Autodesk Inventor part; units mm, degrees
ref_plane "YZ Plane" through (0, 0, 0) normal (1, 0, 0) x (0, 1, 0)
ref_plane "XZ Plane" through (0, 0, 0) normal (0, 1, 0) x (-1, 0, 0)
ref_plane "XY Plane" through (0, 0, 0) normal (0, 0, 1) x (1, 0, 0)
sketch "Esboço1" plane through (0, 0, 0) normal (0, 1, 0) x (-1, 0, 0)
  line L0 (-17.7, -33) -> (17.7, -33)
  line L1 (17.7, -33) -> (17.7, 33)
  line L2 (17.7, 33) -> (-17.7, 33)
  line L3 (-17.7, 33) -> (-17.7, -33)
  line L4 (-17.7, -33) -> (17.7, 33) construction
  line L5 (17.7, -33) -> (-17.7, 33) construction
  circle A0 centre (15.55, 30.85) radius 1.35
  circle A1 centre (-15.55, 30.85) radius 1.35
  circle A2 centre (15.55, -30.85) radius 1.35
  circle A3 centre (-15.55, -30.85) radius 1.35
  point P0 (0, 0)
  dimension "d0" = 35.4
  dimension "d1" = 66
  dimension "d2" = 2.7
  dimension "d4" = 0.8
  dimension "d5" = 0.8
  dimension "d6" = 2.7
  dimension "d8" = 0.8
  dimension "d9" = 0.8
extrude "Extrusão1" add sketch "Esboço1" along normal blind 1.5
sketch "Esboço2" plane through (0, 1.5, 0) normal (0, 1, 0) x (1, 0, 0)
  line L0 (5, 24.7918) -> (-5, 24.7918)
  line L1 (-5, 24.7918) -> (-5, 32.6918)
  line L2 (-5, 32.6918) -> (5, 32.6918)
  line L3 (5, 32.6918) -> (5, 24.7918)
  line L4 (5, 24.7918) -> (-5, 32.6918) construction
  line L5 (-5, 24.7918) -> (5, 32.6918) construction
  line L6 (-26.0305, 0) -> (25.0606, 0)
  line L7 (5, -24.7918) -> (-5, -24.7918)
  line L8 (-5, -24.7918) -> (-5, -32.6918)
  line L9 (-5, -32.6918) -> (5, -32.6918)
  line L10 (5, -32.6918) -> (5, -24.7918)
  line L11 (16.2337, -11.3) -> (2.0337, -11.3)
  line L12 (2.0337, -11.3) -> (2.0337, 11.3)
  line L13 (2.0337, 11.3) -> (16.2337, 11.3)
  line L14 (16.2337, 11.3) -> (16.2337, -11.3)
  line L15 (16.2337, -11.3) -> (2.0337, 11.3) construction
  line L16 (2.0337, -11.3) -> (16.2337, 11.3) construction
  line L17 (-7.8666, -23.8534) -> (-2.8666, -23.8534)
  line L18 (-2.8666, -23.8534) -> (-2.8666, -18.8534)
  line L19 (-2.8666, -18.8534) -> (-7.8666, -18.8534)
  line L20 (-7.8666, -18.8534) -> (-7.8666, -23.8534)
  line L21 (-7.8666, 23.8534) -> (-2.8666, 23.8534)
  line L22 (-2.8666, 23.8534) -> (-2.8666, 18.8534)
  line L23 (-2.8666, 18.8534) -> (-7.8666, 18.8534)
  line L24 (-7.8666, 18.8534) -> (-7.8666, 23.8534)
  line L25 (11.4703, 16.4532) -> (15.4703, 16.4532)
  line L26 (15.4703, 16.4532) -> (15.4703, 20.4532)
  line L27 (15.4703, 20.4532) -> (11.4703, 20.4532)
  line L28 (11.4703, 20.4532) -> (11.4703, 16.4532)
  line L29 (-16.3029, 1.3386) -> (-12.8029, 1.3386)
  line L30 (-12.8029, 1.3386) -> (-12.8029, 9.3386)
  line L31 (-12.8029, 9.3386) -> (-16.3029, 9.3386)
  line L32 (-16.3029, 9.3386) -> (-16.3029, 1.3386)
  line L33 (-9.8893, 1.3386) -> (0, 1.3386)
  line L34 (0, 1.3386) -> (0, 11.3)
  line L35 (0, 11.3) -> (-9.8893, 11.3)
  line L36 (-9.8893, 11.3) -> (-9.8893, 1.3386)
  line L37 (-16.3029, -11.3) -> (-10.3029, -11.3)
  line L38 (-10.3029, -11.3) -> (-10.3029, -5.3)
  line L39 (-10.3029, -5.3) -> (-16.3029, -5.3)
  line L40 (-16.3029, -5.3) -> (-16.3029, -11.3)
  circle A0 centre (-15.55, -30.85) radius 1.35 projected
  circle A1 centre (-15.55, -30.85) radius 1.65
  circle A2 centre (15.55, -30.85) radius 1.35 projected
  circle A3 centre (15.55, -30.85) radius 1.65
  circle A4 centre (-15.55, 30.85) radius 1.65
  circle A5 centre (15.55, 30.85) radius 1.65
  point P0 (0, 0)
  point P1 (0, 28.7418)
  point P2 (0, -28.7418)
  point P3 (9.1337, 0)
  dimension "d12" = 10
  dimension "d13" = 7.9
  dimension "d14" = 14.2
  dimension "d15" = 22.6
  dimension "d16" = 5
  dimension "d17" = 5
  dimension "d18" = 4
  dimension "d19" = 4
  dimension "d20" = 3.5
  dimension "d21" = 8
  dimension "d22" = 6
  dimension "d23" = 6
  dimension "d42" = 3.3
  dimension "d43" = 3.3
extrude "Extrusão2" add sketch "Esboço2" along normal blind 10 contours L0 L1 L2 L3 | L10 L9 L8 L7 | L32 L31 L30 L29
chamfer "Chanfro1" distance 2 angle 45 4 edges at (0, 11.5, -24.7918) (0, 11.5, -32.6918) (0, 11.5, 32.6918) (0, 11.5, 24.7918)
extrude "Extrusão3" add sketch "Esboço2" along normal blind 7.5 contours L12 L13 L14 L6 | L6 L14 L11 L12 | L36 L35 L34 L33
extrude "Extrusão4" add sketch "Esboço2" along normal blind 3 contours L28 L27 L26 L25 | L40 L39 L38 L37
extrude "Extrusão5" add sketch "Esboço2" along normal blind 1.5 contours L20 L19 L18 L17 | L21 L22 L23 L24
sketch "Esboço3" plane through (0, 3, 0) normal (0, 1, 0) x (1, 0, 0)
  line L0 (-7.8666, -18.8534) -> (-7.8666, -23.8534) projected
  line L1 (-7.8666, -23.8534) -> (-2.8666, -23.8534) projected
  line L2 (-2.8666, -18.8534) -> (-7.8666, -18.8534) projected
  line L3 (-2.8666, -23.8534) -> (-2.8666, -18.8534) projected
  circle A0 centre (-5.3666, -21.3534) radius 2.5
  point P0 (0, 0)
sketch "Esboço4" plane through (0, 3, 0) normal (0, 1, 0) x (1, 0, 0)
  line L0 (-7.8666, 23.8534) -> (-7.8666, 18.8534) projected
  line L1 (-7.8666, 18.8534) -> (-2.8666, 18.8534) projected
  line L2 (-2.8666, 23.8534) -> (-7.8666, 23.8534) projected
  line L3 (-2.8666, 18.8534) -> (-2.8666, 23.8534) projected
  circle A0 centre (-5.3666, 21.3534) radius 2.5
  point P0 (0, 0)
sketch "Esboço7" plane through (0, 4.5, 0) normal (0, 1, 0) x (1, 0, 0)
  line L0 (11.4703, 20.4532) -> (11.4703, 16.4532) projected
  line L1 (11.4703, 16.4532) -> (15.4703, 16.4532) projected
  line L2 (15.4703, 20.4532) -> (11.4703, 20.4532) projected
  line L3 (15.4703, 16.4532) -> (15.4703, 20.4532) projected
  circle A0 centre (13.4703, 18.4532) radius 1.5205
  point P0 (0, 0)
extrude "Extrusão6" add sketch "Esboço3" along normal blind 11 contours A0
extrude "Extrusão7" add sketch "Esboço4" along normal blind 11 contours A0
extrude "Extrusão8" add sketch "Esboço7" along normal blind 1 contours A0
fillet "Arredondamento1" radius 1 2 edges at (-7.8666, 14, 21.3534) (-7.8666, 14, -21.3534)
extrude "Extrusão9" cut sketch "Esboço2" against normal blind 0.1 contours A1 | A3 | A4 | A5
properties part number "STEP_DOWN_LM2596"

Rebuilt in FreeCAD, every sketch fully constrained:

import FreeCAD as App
import Part
import Sketcher
from FreeCAD import Vector


def edges_at(feature, points):
    """Names of the edges that pass closest to the given points."""
    edges = feature.Shape.Edges
    near = lambda p: min(range(len(edges)), key=lambda i: edges[i].distToShape(Part.Vertex(*p))[0])
    return sorted({f"Edge{near(p) + 1}" for p in points})

doc = App.newDocument("Part")
body = doc.addObject("PartDesign::Body", "Body")

# Sketch on XZ plane
sketch1 = body.newObject("Sketcher::SketchObject", "Sketch")
sketch1.AttachmentSupport = (doc.getObject("XZ_Plane"), [""])
sketch1.MapMode = "FlatFace"
sketch1.addGeometry([
    Part.LineSegment(Vector(17.7, 33, 0), Vector(17.7, -33, 0)),  # 0
    Part.LineSegment(Vector(17.7, -33, 0), Vector(-17.7, -33, 0)),  # 1
    Part.LineSegment(Vector(-17.7, -33, 0), Vector(-17.7, 33, 0)),  # 2
    Part.LineSegment(Vector(-17.7, 33, 0), Vector(17.7, 33, 0)),  # 3
    Part.Circle(Vector(15.55, -30.85, 0), Vector(0, 0, 1), 1.35),  # 4
    Part.Circle(Vector(-15.55, -30.85, 0), Vector(0, 0, 1), 1.35),  # 5
    Part.Circle(Vector(15.55, 30.85, 0), Vector(0, 0, 1), 1.35),  # 6
    Part.Circle(Vector(-15.55, 30.85, 0), Vector(0, 0, 1), 1.35),  # 7
], False)
sketch1.addConstraint([
    Sketcher.Constraint("Coincident", 0, 2, 1, 1),
    Sketcher.Constraint("Coincident", 1, 2, 2, 1),
    Sketcher.Constraint("Coincident", 2, 2, 3, 1),
    Sketcher.Constraint("Coincident", 3, 2, 0, 1),
    Sketcher.Constraint("Vertical", 0),
    Sketcher.Constraint("Horizontal", 1),
    Sketcher.Constraint("Vertical", 2),
    Sketcher.Constraint("Horizontal", 3),
    Sketcher.Constraint("Equal", 4, 5),
    Sketcher.Constraint("Equal", 5, 6),
    Sketcher.Constraint("Equal", 6, 7),
    Sketcher.Constraint("Symmetric", 5, 3, 6, 3, -1, 1),
    Sketcher.Constraint("Symmetric", 4, 3, 7, 3, -1, 1),
    Sketcher.Constraint("Symmetric", 0, 2, 2, 2, -1, 1),
    Sketcher.Constraint("Symmetric", 4, 3, 5, 3, -2),
    Sketcher.Constraint("Diameter", 4, 2.7),
    Sketcher.Constraint("DistanceY", 0, 2, 0, 1, 66.0),
    Sketcher.Constraint("DistanceX", 1, 2, 1, 1, 35.4),
    Sketcher.Constraint("DistanceX", 5, 3, 4, 3, 31.1),
    Sketcher.Constraint("DistanceY", 4, 3, 6, 3, 61.7),
])
pad1 = body.newObject("PartDesign::Pad", "Pad")
pad1.Profile = sketch1
pad1.Length = 1.5
pad1.Reversed = True

# Sketch on XZ plane
sketch2 = body.newObject("Sketcher::SketchObject", "Sketch001")
sketch2.AttachmentSupport = (doc.getObject("XZ_Plane"), [""])
sketch2.MapMode = "FlatFace"
sketch2.AttachmentOffset = App.Placement(Vector(0, 0, -1.5), App.Rotation())
sketch2.addGeometry([
    Part.LineSegment(Vector(-5, -24.7918, 0), Vector(5, -24.7918, 0)),  # 0
    Part.LineSegment(Vector(5, -24.7918, 0), Vector(5, -32.6918, 0)),  # 1
    Part.LineSegment(Vector(5, -32.6918, 0), Vector(-5, -32.6918, 0)),  # 2
    Part.LineSegment(Vector(-5, -32.6918, 0), Vector(-5, -24.7918, 0)),  # 3
    Part.LineSegment(Vector(5, 32.6918, 0), Vector(5, 24.7918, 0)),  # 4
    Part.LineSegment(Vector(5, 24.7918, 0), Vector(-5, 24.7918, 0)),  # 5
    Part.LineSegment(Vector(-5, 24.7918, 0), Vector(-5, 32.6918, 0)),  # 6
    Part.LineSegment(Vector(-5, 32.6918, 0), Vector(5, 32.6918, 0)),  # 7
    Part.LineSegment(Vector(-16.3029, -9.3386, 0), Vector(-16.3029, -1.3386, 0)),  # 8
    Part.LineSegment(Vector(-16.3029, -1.3386, 0), Vector(-12.8029, -1.3386, 0)),  # 9
    Part.LineSegment(Vector(-12.8029, -1.3386, 0), Vector(-12.8029, -9.3386, 0)),  # 10
    Part.LineSegment(Vector(-12.8029, -9.3386, 0), Vector(-16.3029, -9.3386, 0)),  # 11
], False)
sketch2.addConstraint([
    Sketcher.Constraint("Coincident", 0, 2, 1, 1),
    Sketcher.Constraint("Coincident", 1, 2, 2, 1),
    Sketcher.Constraint("Coincident", 2, 2, 3, 1),
    Sketcher.Constraint("Coincident", 3, 2, 0, 1),
    Sketcher.Constraint("Coincident", 4, 2, 5, 1),
    Sketcher.Constraint("Coincident", 5, 2, 6, 1),
    Sketcher.Constraint("Coincident", 6, 2, 7, 1),
    Sketcher.Constraint("Coincident", 7, 2, 4, 1),
    Sketcher.Constraint("Coincident", 8, 2, 9, 1),
    Sketcher.Constraint("Coincident", 9, 2, 10, 1),
    Sketcher.Constraint("Coincident", 10, 2, 11, 1),
    Sketcher.Constraint("Coincident", 11, 2, 8, 1),
    Sketcher.Constraint("Horizontal", 0),
    Sketcher.Constraint("Vertical", 1),
    Sketcher.Constraint("Horizontal", 2),
    Sketcher.Constraint("Vertical", 3),
    Sketcher.Constraint("Vertical", 4),
    Sketcher.Constraint("Horizontal", 5),
    Sketcher.Constraint("Vertical", 6),
    Sketcher.Constraint("Horizontal", 7),
    Sketcher.Constraint("Vertical", 8),
    Sketcher.Constraint("Horizontal", 9),
    Sketcher.Constraint("Vertical", 10),
    Sketcher.Constraint("Horizontal", 11),
    Sketcher.Constraint("Symmetric", 3, 2, 4, 2, -1, 1),
    Sketcher.Constraint("Symmetric", 1, 2, 6, 2, -1, 1),
    Sketcher.Constraint("Vertical", 1, 2, 4, 2),
    Sketcher.Constraint("DistanceX", 0, 1, 0, 2, 10.0),
    Sketcher.Constraint("DistanceY", 8, 1, 8, 2, 8.0),
    Sketcher.Constraint("DistanceX", 9, 1, 9, 2, 3.5),
    Sketcher.Constraint("DistanceY", 1, 2, 1, 1, 7.9),
    Sketcher.Constraint("DistanceX", 8, 2, -1, 1, 16.303),
    Sketcher.Constraint("DistanceY", 0, 2, -1, 1, 24.7918),
    Sketcher.Constraint("DistanceY", 8, 2, -1, 1, 1.3386),
])
pad2 = body.newObject("PartDesign::Pad", "Pad001")
pad2.Profile = sketch2
pad2.Length = 10
pad2.Reversed = True
doc.recompute()

chamfer = body.newObject("PartDesign::Chamfer", "Chamfer")
chamfer.Base = (pad2, edges_at(pad2, [
    (0, 11.5, -24.792),
    (0, 11.5, -32.692),
    (0, 11.5, 32.692),
    (0, 11.5, 24.792),
]))
chamfer.Size = 2

# Sketch on XZ plane
sketch3 = body.newObject("Sketcher::SketchObject", "Sketch002")
sketch3.AttachmentSupport = (doc.getObject("XZ_Plane"), [""])
sketch3.MapMode = "FlatFace"
sketch3.AttachmentOffset = App.Placement(Vector(0, 0, -1.5), App.Rotation())
sketch3.addGeometry([
    Part.LineSegment(Vector(2.0337, -11.3, 0), Vector(2.0337, 11.3, 0)),  # 0
    Part.LineSegment(Vector(2.0337, 11.3, 0), Vector(16.2337, 11.3, 0)),  # 1
    Part.LineSegment(Vector(16.2337, 11.3, 0), Vector(16.2337, -11.3, 0)),  # 2
    Part.LineSegment(Vector(16.2337, -11.3, 0), Vector(2.0337, -11.3, 0)),  # 3
    Part.LineSegment(Vector(-9.8893, -11.3, 0), Vector(-9.8893, -1.3386, 0)),  # 4
    Part.LineSegment(Vector(-9.8893, -1.3386, 0), Vector(0, -1.3386, 0)),  # 5
    Part.LineSegment(Vector(0, -1.3386, 0), Vector(0, -11.3, 0)),  # 6
    Part.LineSegment(Vector(0, -11.3, 0), Vector(-9.8893, -11.3, 0)),  # 7
], False)
sketch3.addConstraint([
    Sketcher.Constraint("Coincident", 0, 2, 1, 1),
    Sketcher.Constraint("Coincident", 1, 2, 2, 1),
    Sketcher.Constraint("Coincident", 2, 2, 3, 1),
    Sketcher.Constraint("Coincident", 3, 2, 0, 1),
    Sketcher.Constraint("Coincident", 4, 2, 5, 1),
    Sketcher.Constraint("Coincident", 5, 2, 6, 1),
    Sketcher.Constraint("Coincident", 6, 2, 7, 1),
    Sketcher.Constraint("Coincident", 7, 2, 4, 1),
    Sketcher.Constraint("Vertical", 0),
    Sketcher.Constraint("Horizontal", 1),
    Sketcher.Constraint("Vertical", 2),
    Sketcher.Constraint("Horizontal", 3),
    Sketcher.Constraint("Vertical", 4),
    Sketcher.Constraint("Horizontal", 5),
    Sketcher.Constraint("Vertical", 6),
    Sketcher.Constraint("Horizontal", 7),
    Sketcher.Constraint("PointOnObject", 5, 2, -2),
    Sketcher.Constraint("Horizontal", 3, 2, 6, 2),
    Sketcher.Constraint("DistanceX", 1, 1, 1, 2, 14.2),
    Sketcher.Constraint("DistanceY", 0, 1, 0, 2, 22.6),
    Sketcher.Constraint("DistanceY", -1, 1, 0, 2, 11.3),
    Sketcher.Constraint("DistanceX", 5, 1, 5, 2, 9.8893),
    Sketcher.Constraint("DistanceY", 4, 1, 4, 2, 9.9614),
    Sketcher.Constraint("DistanceX", 4, 2, 3, 2, 11.923),
])
pad3 = body.newObject("PartDesign::Pad", "Pad002")
pad3.Profile = sketch3
pad3.Length = 7.5
pad3.Reversed = True

# Sketch on XZ plane
sketch4 = body.newObject("Sketcher::SketchObject", "Sketch003")
sketch4.AttachmentSupport = (doc.getObject("XZ_Plane"), [""])
sketch4.MapMode = "FlatFace"
sketch4.AttachmentOffset = App.Placement(Vector(0, 0, -1.5), App.Rotation())
sketch4.addGeometry([
    Part.LineSegment(Vector(11.4703, -20.4532, 0), Vector(11.4703, -16.4532, 0)),  # 0
    Part.LineSegment(Vector(11.4703, -16.4532, 0), Vector(15.4703, -16.4532, 0)),  # 1
    Part.LineSegment(Vector(15.4703, -16.4532, 0), Vector(15.4703, -20.4532, 0)),  # 2
    Part.LineSegment(Vector(15.4703, -20.4532, 0), Vector(11.4703, -20.4532, 0)),  # 3
    Part.LineSegment(Vector(-16.3029, 5.3, 0), Vector(-16.3029, 11.3, 0)),  # 4
    Part.LineSegment(Vector(-16.3029, 11.3, 0), Vector(-10.3029, 11.3, 0)),  # 5
    Part.LineSegment(Vector(-10.3029, 11.3, 0), Vector(-10.3029, 5.3, 0)),  # 6
    Part.LineSegment(Vector(-10.3029, 5.3, 0), Vector(-16.3029, 5.3, 0)),  # 7
], False)
sketch4.addConstraint([
    Sketcher.Constraint("Coincident", 0, 2, 1, 1),
    Sketcher.Constraint("Coincident", 1, 2, 2, 1),
    Sketcher.Constraint("Coincident", 2, 2, 3, 1),
    Sketcher.Constraint("Coincident", 3, 2, 0, 1),
    Sketcher.Constraint("Coincident", 4, 2, 5, 1),
    Sketcher.Constraint("Coincident", 5, 2, 6, 1),
    Sketcher.Constraint("Coincident", 6, 2, 7, 1),
    Sketcher.Constraint("Coincident", 7, 2, 4, 1),
    Sketcher.Constraint("Vertical", 0),
    Sketcher.Constraint("Horizontal", 1),
    Sketcher.Constraint("Vertical", 2),
    Sketcher.Constraint("Horizontal", 3),
    Sketcher.Constraint("Vertical", 4),
    Sketcher.Constraint("Horizontal", 5),
    Sketcher.Constraint("Vertical", 6),
    Sketcher.Constraint("Horizontal", 7),
    Sketcher.Constraint("Equal", 3, 0),
    Sketcher.Constraint("Equal", 7, 4),
    Sketcher.Constraint("DistanceX", 1, 1, 1, 2, 4.0),
    Sketcher.Constraint("DistanceX", 5, 1, 5, 2, 6.0),
    Sketcher.Constraint("DistanceY", -1, 1, 4, 2, 11.3),
    Sketcher.Constraint("DistanceX", 4, 2, -1, 1, 16.303),
    Sketcher.Constraint("DistanceX", -1, 1, 0, 2, 11.4703),
    Sketcher.Constraint("DistanceY", 0, 2, -1, 1, 16.4532),
])
pad4 = body.newObject("PartDesign::Pad", "Pad003")
pad4.Profile = sketch4
pad4.Length = 3
pad4.Reversed = True

# Sketch on XZ plane
sketch5 = body.newObject("Sketcher::SketchObject", "Sketch004")
sketch5.AttachmentSupport = (doc.getObject("XZ_Plane"), [""])
sketch5.MapMode = "FlatFace"
sketch5.AttachmentOffset = App.Placement(Vector(0, 0, -1.5), App.Rotation())
sketch5.addGeometry([
    Part.LineSegment(Vector(-7.8666, 18.8534, 0), Vector(-7.8666, 23.8534, 0)),  # 0
    Part.LineSegment(Vector(-7.8666, 23.8534, 0), Vector(-2.8666, 23.8534, 0)),  # 1
    Part.LineSegment(Vector(-2.8666, 23.8534, 0), Vector(-2.8666, 18.8534, 0)),  # 2
    Part.LineSegment(Vector(-2.8666, 18.8534, 0), Vector(-7.8666, 18.8534, 0)),  # 3
    Part.LineSegment(Vector(-2.8666, -23.8534, 0), Vector(-7.8666, -23.8534, 0)),  # 4
    Part.LineSegment(Vector(-7.8666, -23.8534, 0), Vector(-7.8666, -18.8534, 0)),  # 5
    Part.LineSegment(Vector(-7.8666, -18.8534, 0), Vector(-2.8666, -18.8534, 0)),  # 6
    Part.LineSegment(Vector(-2.8666, -18.8534, 0), Vector(-2.8666, -23.8534, 0)),  # 7
], False)
sketch5.addConstraint([
    Sketcher.Constraint("Coincident", 0, 2, 1, 1),
    Sketcher.Constraint("Coincident", 1, 2, 2, 1),
    Sketcher.Constraint("Coincident", 2, 2, 3, 1),
    Sketcher.Constraint("Coincident", 3, 2, 0, 1),
    Sketcher.Constraint("Coincident", 4, 2, 5, 1),
    Sketcher.Constraint("Coincident", 5, 2, 6, 1),
    Sketcher.Constraint("Coincident", 6, 2, 7, 1),
    Sketcher.Constraint("Coincident", 7, 2, 4, 1),
    Sketcher.Constraint("Vertical", 0),
    Sketcher.Constraint("Horizontal", 1),
    Sketcher.Constraint("Vertical", 2),
    Sketcher.Constraint("Horizontal", 3),
    Sketcher.Constraint("Horizontal", 4),
    Sketcher.Constraint("Vertical", 5),
    Sketcher.Constraint("Horizontal", 6),
    Sketcher.Constraint("Vertical", 7),
    Sketcher.Constraint("Symmetric", 0, 2, 4, 2, -1),
    Sketcher.Constraint("Symmetric", 2, 2, 6, 2, -1),
    Sketcher.Constraint("Equal", 6, 0),
    Sketcher.Constraint("DistanceX", 1, 1, 1, 2, 5.0),
    Sketcher.Constraint("DistanceX", 0, 2, -1, 1, 7.8666),
    Sketcher.Constraint("DistanceY", -1, 1, 0, 2, 23.8534),
])
pad5 = body.newObject("PartDesign::Pad", "Pad004")
pad5.Profile = sketch5
pad5.Length = 1.5
pad5.Reversed = True

# Sketch on XZ plane
sketch6 = body.newObject("Sketcher::SketchObject", "Sketch005")
sketch6.AttachmentSupport = (doc.getObject("XZ_Plane"), [""])
sketch6.MapMode = "FlatFace"
sketch6.AttachmentOffset = App.Placement(Vector(0, 0, -3), App.Rotation())
sketch6.addGeometry(Part.Circle(Vector(-5.3666, 21.3534, 0), Vector(0, 0, 1), 2.5), False)
sketch6.addConstraint([
    Sketcher.Constraint("Diameter", 0, 5.0),
    Sketcher.Constraint("DistanceX", 0, 3, -1, 1, 5.3666),
    Sketcher.Constraint("DistanceY", -1, 1, 0, 3, 21.3534),
])
pad6 = body.newObject("PartDesign::Pad", "Pad005")
pad6.Profile = sketch6
pad6.Length = 11
pad6.Reversed = True

# Sketch on XZ plane
sketch7 = body.newObject("Sketcher::SketchObject", "Sketch006")
sketch7.AttachmentSupport = (doc.getObject("XZ_Plane"), [""])
sketch7.MapMode = "FlatFace"
sketch7.AttachmentOffset = App.Placement(Vector(0, 0, -3), App.Rotation())
sketch7.addGeometry(Part.Circle(Vector(-5.3666, -21.3534, 0), Vector(0, 0, 1), 2.5), False)
sketch7.addConstraint([
    Sketcher.Constraint("Diameter", 0, 5.0),
    Sketcher.Constraint("DistanceX", 0, 3, -1, 1, 5.3666),
    Sketcher.Constraint("DistanceY", 0, 3, -1, 1, 21.3534),
])
pad7 = body.newObject("PartDesign::Pad", "Pad006")
pad7.Profile = sketch7
pad7.Length = 11
pad7.Reversed = True

# Sketch on XZ plane
sketch8 = body.newObject("Sketcher::SketchObject", "Sketch007")
sketch8.AttachmentSupport = (doc.getObject("XZ_Plane"), [""])
sketch8.MapMode = "FlatFace"
sketch8.AttachmentOffset = App.Placement(Vector(0, 0, -4.5), App.Rotation())
sketch8.addGeometry(Part.Circle(Vector(13.4703, -18.4532, 0), Vector(0, 0, 1), 1.5205), False)
sketch8.addConstraint([
    Sketcher.Constraint("Diameter", 0, 3.041),
    Sketcher.Constraint("DistanceX", -1, 1, 0, 3, 13.4703),
    Sketcher.Constraint("DistanceY", 0, 3, -1, 1, 18.4532),
])
pad8 = body.newObject("PartDesign::Pad", "Pad007")
pad8.Profile = sketch8
pad8.Length = 1
pad8.Reversed = True
doc.recompute()

fillet = body.newObject("PartDesign::Fillet", "Fillet")
fillet.Base = (pad8, edges_at(pad8, [(-7.867, 14, 21.353), (-7.867, 14, -21.353)]))
fillet.Radius = 1

# Sketch on XZ plane
sketch9 = body.newObject("Sketcher::SketchObject", "Sketch008")
sketch9.AttachmentSupport = (doc.getObject("XZ_Plane"), [""])
sketch9.MapMode = "FlatFace"
sketch9.AttachmentOffset = App.Placement(Vector(0, 0, -1.5), App.Rotation())
sketch9.addGeometry([
    Part.Circle(Vector(-15.55, 30.85, 0), Vector(0, 0, 1), 1.65),  # 0
    Part.Circle(Vector(-15.55, 30.85, 0), Vector(0, 0, 1), 1.35),  # 1
    Part.Circle(Vector(15.55, 30.85, 0), Vector(0, 0, 1), 1.65),  # 2
    Part.Circle(Vector(15.55, 30.85, 0), Vector(0, 0, 1), 1.35),  # 3
    Part.Circle(Vector(-15.55, -30.85, 0), Vector(0, 0, 1), 1.65),  # 4
    Part.Circle(Vector(15.55, -30.85, 0), Vector(0, 0, 1), 1.65),  # 5
], False)
sketch9.addConstraint([
    Sketcher.Constraint("Coincident", 1, 3, 0, 3),
    Sketcher.Constraint("Coincident", 3, 3, 2, 3),
    Sketcher.Constraint("Equal", 0, 2),
    Sketcher.Constraint("Equal", 1, 3),
    Sketcher.Constraint("Equal", 2, 4),
    Sketcher.Constraint("Equal", 4, 5),
    Sketcher.Constraint("Symmetric", 2, 3, 4, 3, -1, 1),
    Sketcher.Constraint("Symmetric", 0, 3, 5, 3, -1, 1),
    Sketcher.Constraint("Symmetric", 0, 3, 2, 3, -2),
    Sketcher.Constraint("Diameter", 0, 3.3),
    Sketcher.Constraint("Diameter", 1, 2.7),
    Sketcher.Constraint("DistanceX", 0, 3, 2, 3, 31.1),
    Sketcher.Constraint("DistanceY", 4, 3, 0, 3, 61.7),
])
pocket1 = body.newObject("PartDesign::Pocket", "Pocket")
pocket1.Profile = sketch9
pocket1.Length = 0.1
pocket1.Reversed = True

doc.recompute()
